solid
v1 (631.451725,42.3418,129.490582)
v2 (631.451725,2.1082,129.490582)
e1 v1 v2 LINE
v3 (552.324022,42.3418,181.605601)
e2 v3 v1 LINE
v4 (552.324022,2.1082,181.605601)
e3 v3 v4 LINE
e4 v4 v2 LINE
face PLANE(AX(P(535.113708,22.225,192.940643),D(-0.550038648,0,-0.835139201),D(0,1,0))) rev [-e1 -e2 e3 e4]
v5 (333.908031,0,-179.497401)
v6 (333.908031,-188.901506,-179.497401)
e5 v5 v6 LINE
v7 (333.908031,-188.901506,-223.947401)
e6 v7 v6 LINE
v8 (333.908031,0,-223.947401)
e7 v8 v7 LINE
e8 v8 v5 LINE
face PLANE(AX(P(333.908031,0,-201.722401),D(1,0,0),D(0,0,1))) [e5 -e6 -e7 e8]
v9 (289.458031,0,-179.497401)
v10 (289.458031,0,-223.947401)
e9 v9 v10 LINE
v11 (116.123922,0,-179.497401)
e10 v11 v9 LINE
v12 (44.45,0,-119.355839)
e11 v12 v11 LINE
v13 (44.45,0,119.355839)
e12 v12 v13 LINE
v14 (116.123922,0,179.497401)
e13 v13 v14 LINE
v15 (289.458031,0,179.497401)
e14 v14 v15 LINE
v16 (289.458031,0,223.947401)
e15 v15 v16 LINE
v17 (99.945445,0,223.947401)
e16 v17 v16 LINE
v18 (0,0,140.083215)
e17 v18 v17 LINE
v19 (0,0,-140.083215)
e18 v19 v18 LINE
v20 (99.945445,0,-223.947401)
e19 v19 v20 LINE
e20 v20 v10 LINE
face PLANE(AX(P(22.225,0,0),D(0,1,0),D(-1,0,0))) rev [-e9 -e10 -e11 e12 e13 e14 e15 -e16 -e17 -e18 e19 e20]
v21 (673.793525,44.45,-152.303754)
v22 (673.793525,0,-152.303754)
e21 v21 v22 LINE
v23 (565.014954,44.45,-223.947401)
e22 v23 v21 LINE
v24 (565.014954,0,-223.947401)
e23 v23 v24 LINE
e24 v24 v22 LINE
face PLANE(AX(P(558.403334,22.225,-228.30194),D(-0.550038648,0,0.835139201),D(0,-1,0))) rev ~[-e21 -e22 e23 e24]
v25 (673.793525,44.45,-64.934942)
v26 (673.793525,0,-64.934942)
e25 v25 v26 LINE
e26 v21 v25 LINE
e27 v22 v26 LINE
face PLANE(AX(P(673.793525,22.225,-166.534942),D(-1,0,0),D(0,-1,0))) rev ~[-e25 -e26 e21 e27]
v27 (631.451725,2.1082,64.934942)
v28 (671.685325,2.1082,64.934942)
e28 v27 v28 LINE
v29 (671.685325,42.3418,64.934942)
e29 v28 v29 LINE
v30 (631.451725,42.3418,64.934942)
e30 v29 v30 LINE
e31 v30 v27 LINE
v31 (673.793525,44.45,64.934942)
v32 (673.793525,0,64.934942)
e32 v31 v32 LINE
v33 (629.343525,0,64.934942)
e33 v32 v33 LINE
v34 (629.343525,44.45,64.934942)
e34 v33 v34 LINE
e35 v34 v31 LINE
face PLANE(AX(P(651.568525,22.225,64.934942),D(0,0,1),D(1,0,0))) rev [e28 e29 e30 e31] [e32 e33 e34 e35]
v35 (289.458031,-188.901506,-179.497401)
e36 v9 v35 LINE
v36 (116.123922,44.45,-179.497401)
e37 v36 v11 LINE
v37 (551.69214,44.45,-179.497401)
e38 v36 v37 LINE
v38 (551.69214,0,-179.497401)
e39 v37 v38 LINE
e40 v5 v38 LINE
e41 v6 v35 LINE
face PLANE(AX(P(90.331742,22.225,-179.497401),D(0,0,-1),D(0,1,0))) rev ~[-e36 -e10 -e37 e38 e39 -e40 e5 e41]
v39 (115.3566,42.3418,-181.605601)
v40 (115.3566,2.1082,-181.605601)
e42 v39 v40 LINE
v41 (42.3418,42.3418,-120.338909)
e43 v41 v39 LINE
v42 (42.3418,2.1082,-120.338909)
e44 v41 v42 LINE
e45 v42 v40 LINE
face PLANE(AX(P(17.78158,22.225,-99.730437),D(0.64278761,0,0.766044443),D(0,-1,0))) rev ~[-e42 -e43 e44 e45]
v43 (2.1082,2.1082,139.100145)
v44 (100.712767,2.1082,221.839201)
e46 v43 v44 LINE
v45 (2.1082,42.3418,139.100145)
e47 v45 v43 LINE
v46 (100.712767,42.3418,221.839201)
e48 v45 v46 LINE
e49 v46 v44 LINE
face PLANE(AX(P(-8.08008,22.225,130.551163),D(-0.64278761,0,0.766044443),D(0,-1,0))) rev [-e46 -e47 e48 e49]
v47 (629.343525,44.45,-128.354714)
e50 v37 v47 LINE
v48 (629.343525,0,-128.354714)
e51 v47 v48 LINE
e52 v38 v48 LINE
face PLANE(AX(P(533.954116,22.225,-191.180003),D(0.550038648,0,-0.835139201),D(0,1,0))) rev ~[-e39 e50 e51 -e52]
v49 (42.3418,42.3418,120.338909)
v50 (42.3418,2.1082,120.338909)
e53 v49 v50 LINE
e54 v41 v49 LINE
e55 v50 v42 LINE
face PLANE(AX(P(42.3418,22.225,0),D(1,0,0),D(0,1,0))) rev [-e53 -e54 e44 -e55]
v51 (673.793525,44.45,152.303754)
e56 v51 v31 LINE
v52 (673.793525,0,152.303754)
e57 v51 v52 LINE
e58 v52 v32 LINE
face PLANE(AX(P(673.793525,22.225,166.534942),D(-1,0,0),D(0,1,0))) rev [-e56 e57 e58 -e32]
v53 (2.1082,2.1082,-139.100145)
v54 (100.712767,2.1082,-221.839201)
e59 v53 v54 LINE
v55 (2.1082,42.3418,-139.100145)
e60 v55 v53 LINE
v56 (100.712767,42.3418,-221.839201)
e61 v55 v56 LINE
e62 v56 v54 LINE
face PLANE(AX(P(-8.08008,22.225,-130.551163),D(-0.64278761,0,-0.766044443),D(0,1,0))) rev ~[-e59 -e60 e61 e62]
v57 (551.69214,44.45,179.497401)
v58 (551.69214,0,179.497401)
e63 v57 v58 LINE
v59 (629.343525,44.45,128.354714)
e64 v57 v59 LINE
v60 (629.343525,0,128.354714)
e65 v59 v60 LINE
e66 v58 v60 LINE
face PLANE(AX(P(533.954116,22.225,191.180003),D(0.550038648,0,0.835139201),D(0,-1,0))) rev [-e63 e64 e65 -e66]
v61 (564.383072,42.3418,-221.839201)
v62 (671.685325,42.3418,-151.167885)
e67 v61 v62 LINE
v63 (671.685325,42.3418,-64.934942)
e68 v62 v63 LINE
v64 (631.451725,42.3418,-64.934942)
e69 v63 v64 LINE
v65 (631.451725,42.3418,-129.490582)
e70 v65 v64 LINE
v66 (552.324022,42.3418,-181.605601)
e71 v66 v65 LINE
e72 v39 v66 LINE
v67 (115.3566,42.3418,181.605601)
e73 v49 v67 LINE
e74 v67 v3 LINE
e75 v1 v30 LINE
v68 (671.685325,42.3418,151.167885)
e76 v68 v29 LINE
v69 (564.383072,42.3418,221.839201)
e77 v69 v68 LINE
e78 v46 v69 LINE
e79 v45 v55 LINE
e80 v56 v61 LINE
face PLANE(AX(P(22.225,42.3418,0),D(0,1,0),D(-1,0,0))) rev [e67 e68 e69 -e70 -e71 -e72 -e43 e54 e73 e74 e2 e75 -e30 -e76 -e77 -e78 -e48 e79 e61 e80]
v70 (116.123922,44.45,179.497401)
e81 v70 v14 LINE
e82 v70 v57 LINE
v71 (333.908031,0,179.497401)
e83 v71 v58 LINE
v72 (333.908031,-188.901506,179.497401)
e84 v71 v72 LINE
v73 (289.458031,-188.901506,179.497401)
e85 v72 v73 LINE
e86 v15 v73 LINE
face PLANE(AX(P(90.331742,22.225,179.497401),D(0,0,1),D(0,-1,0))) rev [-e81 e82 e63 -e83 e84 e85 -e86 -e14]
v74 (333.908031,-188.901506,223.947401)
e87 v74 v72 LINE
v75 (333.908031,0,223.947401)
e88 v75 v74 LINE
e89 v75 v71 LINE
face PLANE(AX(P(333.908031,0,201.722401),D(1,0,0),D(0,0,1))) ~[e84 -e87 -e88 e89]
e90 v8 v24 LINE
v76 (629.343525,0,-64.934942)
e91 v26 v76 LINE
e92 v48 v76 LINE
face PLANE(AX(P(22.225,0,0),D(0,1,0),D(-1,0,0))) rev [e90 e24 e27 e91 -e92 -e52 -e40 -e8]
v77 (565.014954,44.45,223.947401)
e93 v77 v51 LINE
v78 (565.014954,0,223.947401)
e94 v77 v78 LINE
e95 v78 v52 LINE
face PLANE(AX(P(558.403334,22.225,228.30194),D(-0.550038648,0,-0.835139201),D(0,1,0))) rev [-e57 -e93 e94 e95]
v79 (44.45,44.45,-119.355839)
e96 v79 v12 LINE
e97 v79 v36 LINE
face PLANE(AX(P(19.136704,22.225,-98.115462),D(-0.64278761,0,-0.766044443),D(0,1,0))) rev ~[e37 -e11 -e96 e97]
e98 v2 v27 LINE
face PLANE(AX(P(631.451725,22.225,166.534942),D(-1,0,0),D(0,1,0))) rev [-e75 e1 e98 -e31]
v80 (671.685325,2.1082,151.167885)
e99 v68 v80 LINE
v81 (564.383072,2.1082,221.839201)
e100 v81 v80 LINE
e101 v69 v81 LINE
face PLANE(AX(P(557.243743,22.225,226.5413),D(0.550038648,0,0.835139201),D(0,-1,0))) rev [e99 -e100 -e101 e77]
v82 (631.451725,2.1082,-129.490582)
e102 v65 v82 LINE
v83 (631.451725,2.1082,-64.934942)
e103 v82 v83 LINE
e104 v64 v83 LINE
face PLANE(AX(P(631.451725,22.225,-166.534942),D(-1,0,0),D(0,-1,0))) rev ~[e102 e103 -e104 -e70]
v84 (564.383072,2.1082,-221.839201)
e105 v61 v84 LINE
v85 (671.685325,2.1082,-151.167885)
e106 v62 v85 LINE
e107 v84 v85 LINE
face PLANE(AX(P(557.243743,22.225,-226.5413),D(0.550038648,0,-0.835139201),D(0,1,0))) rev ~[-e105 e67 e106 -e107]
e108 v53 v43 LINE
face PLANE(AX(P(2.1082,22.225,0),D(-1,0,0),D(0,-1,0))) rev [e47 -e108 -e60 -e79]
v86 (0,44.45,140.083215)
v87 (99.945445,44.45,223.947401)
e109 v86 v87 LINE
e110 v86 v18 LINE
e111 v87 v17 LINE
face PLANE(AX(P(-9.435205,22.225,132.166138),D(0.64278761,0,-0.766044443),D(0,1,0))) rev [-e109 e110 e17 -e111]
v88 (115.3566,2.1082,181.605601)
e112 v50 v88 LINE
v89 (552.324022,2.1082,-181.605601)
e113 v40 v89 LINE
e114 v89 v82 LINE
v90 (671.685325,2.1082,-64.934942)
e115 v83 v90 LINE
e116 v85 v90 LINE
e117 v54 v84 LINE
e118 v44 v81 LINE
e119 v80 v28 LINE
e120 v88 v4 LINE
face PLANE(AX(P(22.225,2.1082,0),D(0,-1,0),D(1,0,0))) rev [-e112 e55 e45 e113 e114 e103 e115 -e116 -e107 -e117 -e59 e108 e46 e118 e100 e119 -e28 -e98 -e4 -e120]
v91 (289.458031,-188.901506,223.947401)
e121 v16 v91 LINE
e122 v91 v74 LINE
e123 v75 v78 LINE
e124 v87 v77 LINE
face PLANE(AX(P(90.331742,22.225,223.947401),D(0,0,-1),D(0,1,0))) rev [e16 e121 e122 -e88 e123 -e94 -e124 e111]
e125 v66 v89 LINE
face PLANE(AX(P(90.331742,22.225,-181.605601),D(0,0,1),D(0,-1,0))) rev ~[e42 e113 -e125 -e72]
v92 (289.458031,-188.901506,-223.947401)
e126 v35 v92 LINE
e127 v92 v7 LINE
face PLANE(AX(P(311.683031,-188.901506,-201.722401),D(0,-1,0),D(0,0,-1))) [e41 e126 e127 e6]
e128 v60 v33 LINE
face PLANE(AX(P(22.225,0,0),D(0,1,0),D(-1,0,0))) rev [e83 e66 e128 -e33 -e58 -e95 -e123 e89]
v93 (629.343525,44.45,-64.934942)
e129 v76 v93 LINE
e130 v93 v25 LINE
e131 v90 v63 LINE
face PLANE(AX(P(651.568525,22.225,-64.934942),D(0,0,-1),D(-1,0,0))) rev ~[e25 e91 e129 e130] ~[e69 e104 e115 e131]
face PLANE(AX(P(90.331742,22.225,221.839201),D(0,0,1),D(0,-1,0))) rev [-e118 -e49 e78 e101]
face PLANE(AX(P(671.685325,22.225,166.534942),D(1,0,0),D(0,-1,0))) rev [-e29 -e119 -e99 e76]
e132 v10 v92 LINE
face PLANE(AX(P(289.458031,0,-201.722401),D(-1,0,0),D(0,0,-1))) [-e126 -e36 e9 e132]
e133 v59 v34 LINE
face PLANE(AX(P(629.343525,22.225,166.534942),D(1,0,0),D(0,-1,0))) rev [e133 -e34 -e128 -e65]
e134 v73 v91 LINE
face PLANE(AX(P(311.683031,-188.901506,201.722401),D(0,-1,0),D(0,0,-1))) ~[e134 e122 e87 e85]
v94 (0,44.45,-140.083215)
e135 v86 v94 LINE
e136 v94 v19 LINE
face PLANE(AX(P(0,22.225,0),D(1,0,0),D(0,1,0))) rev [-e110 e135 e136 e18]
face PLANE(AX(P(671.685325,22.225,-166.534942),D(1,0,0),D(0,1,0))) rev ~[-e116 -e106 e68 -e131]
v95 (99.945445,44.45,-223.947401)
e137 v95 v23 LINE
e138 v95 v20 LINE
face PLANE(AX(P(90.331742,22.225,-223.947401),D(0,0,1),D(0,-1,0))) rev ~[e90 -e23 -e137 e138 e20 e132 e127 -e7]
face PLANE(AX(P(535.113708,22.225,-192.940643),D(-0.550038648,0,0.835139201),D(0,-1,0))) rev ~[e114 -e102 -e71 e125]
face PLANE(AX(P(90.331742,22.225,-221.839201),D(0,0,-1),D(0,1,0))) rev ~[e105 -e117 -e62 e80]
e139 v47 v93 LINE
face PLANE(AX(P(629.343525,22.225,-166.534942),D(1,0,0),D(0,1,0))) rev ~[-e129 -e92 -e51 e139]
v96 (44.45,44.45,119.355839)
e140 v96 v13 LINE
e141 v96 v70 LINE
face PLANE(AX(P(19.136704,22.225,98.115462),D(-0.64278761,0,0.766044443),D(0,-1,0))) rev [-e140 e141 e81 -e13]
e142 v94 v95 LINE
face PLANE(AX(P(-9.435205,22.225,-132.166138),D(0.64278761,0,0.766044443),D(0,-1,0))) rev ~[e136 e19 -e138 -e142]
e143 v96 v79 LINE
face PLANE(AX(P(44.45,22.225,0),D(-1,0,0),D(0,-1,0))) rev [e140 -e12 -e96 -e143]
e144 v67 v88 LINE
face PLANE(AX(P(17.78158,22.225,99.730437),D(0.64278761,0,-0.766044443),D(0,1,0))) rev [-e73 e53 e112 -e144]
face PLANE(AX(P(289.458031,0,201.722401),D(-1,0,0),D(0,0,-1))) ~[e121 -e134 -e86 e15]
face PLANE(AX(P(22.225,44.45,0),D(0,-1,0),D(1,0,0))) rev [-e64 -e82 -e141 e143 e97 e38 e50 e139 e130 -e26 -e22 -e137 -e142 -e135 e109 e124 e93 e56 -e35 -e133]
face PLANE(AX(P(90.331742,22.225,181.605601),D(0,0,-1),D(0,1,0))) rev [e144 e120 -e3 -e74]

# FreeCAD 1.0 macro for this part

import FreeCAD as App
import Part
import Sketcher
from FreeCAD import Vector
Q = App.Units.Quantity


def add_polygon(sketch, points):
    """Adds a closed chain of lines whose ends are joined by coincident constraints."""
    first, n = sketch.GeometryCount, len(points)
    for a, b in zip(points, points[1:] + points[:1]):
        sketch.addGeometry(Part.LineSegment(App.Vector(*a, 0), App.Vector(*b, 0)), False)
    for i in range(n):
        sketch.addConstraint(Sketcher.Constraint("Coincident", first + i, 2, first + (i + 1) % n, 1))

doc = App.newDocument("Part")
params = doc.addObject("Spreadsheet::Sheet", "Params")
for row, (alias, value) in enumerate([
    ("sketch1_width", "1.75 in"),
    ("sketch1_width2", "1.584 in"),
    ("sketch2_width", "19 in"),
    ("sketch2_height", "6 in"),
    ("sketch2_height2", "4 in"),
    ("sketch2_length", "6 in"),
    ("sketch3_width", "1.75 in"),
], start=1):
    params.set(f"A{row}", alias)
    params.set(f"B{row}", "=" + value)
    params.setAlias(f"B{row}", alias)

body = doc.addObject("PartDesign::Body", "Body")

# Sketch on XY plane
sketch1 = doc.addObject("Sketcher::SketchObject", "Sketch")
body.addObject(sketch1)
sketch1.AttachmentSupport = (doc.XY_Plane, [""])
sketch1.MapMode = "FlatFace"
add_polygon(sketch1, [(0, 44), (0, 0), (44, 0), (44, 44)])  # lines 0-3
add_polygon(sketch1, [(42, 2), (2, 2), (2, 42), (42, 42)])  # lines 4-7
sketch1.addConstraint([
    Sketcher.Constraint("Vertical", 0),
    Sketcher.Constraint("Horizontal", 1),
    Sketcher.Constraint("Vertical", 2),
    Sketcher.Constraint("Horizontal", 3),
    Sketcher.Constraint("Horizontal", 4),
    Sketcher.Constraint("Vertical", 5),
    Sketcher.Constraint("Horizontal", 6),
    Sketcher.Constraint("Vertical", 7),
    Sketcher.Constraint("Coincident", 0, 2, -1, 1),
    Sketcher.Constraint("Equal", 3, 0),
    Sketcher.Constraint("Equal", 6, 5),
    Sketcher.Constraint("DistanceX", 1, 1, 1, 2, Q("1.75 in")),
    Sketcher.Constraint("DistanceX", 4, 2, 4, 1, Q("1.584 in")),
    Sketcher.Constraint("DistanceX", -1, 1, 4, 2, Q("0.083 in")),
    Sketcher.Constraint("DistanceY", -1, 1, 4, 2, Q("0.083 in")),
])
sketch1.setExpression("Constraints[19]", "Params.sketch1_width")
sketch1.setExpression("Constraints[20]", "Params.sketch1_width2")

# Sketch on XZ plane
sketch2 = doc.addObject("Sketcher::SketchObject", "Sketch001")
body.addObject(sketch2)
sketch2.AttachmentSupport = (doc.XZ_Plane, [""])
sketch2.MapMode = "FlatFace"
sketch2.addGeometry([
    Part.LineSegment(Vector(-26, 0, 0), Vector(-26, -152, 0)),  # 0
    Part.LineSegment(Vector(-26, -152, 0), Vector(90, -250, 0)),  # 1
    Part.LineSegment(Vector(90, -250, 0), Vector(573, -250, 0)),  # 2
    Part.LineSegment(Vector(573, -250, 0), Vector(700, -167, 0)),  # 3
    Part.LineSegment(Vector(700, -167, 0), Vector(700, -65, 0)),  # 4
], False)
sketch2.addConstraint([
    Sketcher.Constraint("Coincident", 0, 2, 1, 1),
    Sketcher.Constraint("Coincident", 1, 2, 2, 1),
    Sketcher.Constraint("Coincident", 2, 2, 3, 1),
    Sketcher.Constraint("Coincident", 3, 2, 4, 1),
    Sketcher.Constraint("Vertical", 0),
    Sketcher.Constraint("Horizontal", 2),
    Sketcher.Constraint("Vertical", 4),
    Sketcher.Constraint("PointOnObject", 0, 1, -1),
    Sketcher.Constraint("Equal", 1, 3),
    Sketcher.Constraint("DistanceX", 2, 1, 2, 2, Q("19 in")),
    Sketcher.Constraint("DistanceY", 0, 2, 0, 1, Q("6 in")),
    Sketcher.Constraint("DistanceY", 4, 1, 4, 2, Q("4 in")),
    Sketcher.Constraint("Distance", 1, Q("6 in")),
    Sketcher.Constraint("Angle", 1, Q("-40 deg")),
    Sketcher.Constraint("DistanceX", 0, 1, -1, 1, 26.413431),
    Sketcher.Constraint("DistanceY", 3, 2, -1, 1, 166.534942),
])
sketch2.setExpression("Constraints[9]", "Params.sketch2_width")
sketch2.setExpression("Constraints[10]", "Params.sketch2_height")
sketch2.setExpression("Constraints[11]", "Params.sketch2_height2")
sketch2.setExpression("Constraints[12]", "Params.sketch2_length")
doc.recompute()

additivepipe = doc.addObject("PartDesign::AdditivePipe", "AdditivePipe")
body.addObject(additivepipe)
additivepipe.Profile = sketch1
additivepipe.Spine = (sketch2, ["Edge1", "Edge2", "Edge3", "Edge4", "Edge5"])
additivepipe.Transition = "Right corner"
body2 = doc.addObject("PartDesign::Body", "Body001")
doc.recompute()

body2.BaseFeature = body
doc.recompute()

mirroring = doc.addObject("Part::Mirroring", "Mirroring")
mirroring.Source = body
mirroring.Base = Vector(0, 0, 0)
mirroring.Normal = Vector(0, 0, 1)
body3 = doc.addObject("PartDesign::Body", "Body002")
body3.BaseFeature = mirroring
boolean = doc.addObject("PartDesign::Boolean", "Boolean")
body2.addObject(boolean)
boolean.Type = "Fuse"
boolean.addObjects([body3])
doc.recompute()

# Sketch on XZ plane
sketch3 = doc.addObject("Sketcher::SketchObject", "Sketch002")
body2.addObject(sketch3)
sketch3.AttachmentSupport = (doc.getObject("XZ_Plane001"), [""])
sketch3.MapMode = "FlatFace"
add_polygon(sketch3, [(289, -179), (289, -224), (334, -224), (334, -179)])  # lines 0-3
sketch3.addConstraint([
    Sketcher.Constraint("Vertical", 0),
    Sketcher.Constraint("Horizontal", 1),
    Sketcher.Constraint("Vertical", 2),
    Sketcher.Constraint("Horizontal", 3),
    Sketcher.Constraint("Equal", 3, 0),
    Sketcher.Constraint("DistanceX", 1, 1, 1, 2, Q("1.75 in")),
    Sketcher.Constraint("DistanceY", 0, 2, -1, 1, 223.947401),
    Sketcher.Constraint("DistanceX", -1, 1, 0, 2, 289.458031),
])
sketch3.setExpression("Constraints[9]", "Params.sketch3_width")

# Sketch on XY plane
sketch4 = doc.addObject("Sketcher::SketchObject", "Sketch003")
body2.addObject(sketch4)
sketch4.AttachmentSupport = (doc.getObject("XY_Plane001"), [""])
sketch4.MapMode = "FlatFace"
sketch4.AttachmentOffset = App.Placement(Vector(0, 0, -223.947401), App.Rotation())
sketch4.addGeometry(Part.LineSegment(Vector(311, -22, 0), Vector(311, -211, 0)), False)
sketch4.addConstraint([
    Sketcher.Constraint("Vertical", 0),
    Sketcher.Constraint("DistanceY", 0, 2, 0, 1, 188.901506),
    Sketcher.Constraint("DistanceX", -1, 1, 0, 1, 310.839509),
    Sketcher.Constraint("DistanceY", 0, 1, -1, 1, 21.899629),
])
doc.recompute()

additivepipe2 = doc.addObject("PartDesign::AdditivePipe", "AdditivePipe001")
body2.addObject(additivepipe2)
additivepipe2.Profile = sketch3
additivepipe2.Spine = (sketch4, ["Edge1"])
body4 = doc.addObject("PartDesign::Body", "Body003")
doc.recompute()

body4.BaseFeature = body2
doc.recompute()

mirroring2 = doc.addObject("Part::Mirroring", "Mirroring001")
mirroring2.Source = body2
mirroring2.Base = Vector(0, 0, 0)
mirroring2.Normal = Vector(0, 0, 1)
body5 = doc.addObject("PartDesign::Body", "Body004")
body5.BaseFeature = mirroring2
boolean2 = doc.addObject("PartDesign::Boolean", "Boolean001")
body4.addObject(boolean2)
boolean2.Type = "Fuse"
boolean2.addObjects([body5])
doc.recompute()
mirroring.Visibility = False
mirroring2.Visibility = False

doc.recompute()
